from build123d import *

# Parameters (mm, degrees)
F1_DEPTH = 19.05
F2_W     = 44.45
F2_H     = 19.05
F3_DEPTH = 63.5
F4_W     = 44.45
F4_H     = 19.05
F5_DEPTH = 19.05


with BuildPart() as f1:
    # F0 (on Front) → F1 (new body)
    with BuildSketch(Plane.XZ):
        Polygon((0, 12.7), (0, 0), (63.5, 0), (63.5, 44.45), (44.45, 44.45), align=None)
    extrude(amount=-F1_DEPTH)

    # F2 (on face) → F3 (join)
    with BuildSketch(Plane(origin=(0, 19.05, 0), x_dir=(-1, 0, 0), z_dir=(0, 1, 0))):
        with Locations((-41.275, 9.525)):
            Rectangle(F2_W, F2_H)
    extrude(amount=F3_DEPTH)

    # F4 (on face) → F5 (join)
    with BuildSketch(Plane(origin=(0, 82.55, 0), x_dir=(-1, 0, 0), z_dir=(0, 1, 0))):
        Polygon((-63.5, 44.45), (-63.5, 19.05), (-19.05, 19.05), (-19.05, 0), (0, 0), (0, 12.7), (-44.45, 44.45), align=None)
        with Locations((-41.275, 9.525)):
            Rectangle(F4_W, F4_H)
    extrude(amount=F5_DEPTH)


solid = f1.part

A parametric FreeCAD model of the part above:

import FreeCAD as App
import Part
import Sketcher
Q = App.Units.Quantity

doc = App.newDocument("Part")
body = doc.addObject("PartDesign::Body", "Body")

# Sketch on XZ plane
sketch1 = body.newObject("Sketcher::SketchObject", "Sketch")
sketch1.AttachmentSupport = (doc.getObject("XZ_Plane"), [""])
sketch1.MapMode = "FlatFace"
sketch1.addGeometry([
    Part.LineSegment(App.Vector(0, 13, 0), App.Vector(0, 0, 0)),  # 0
    Part.LineSegment(App.Vector(0, 0, 0), App.Vector(64, 0, 0)),  # 1
    Part.LineSegment(App.Vector(64, 0, 0), App.Vector(64, 44, 0)),  # 2
    Part.LineSegment(App.Vector(64, 44, 0), App.Vector(44, 44, 0)),  # 3
    Part.LineSegment(App.Vector(44, 44, 0), App.Vector(0, 13, 0)),  # 4
], False)
sketch1.addConstraint([
    Sketcher.Constraint("Coincident", 0, 2, 1, 1),
    Sketcher.Constraint("Coincident", 1, 2, 2, 1),
    Sketcher.Constraint("Coincident", 2, 2, 3, 1),
    Sketcher.Constraint("Coincident", 3, 2, 4, 1),
    Sketcher.Constraint("Coincident", 4, 2, 0, 1),
    Sketcher.Constraint("Vertical", 0),
    Sketcher.Constraint("Horizontal", 1),
    Sketcher.Constraint("Vertical", 2),
    Sketcher.Constraint("Horizontal", 3),
    Sketcher.Constraint("Coincident", 0, 2, -1, 1),
    Sketcher.Constraint("DistanceX", 1, 1, 1, 2, Q("2.5 in")),
    Sketcher.Constraint("DistanceY", 0, 2, 0, 1, Q("0.5 in")),
    Sketcher.Constraint("DistanceX", 3, 2, 3, 1, Q("0.75 in")),
    Sketcher.Constraint("DistanceY", 2, 1, 2, 2, Q("1.75 in")),
])
pad1 = body.newObject("PartDesign::Pad", "Pad")
pad1.Profile = sketch1
pad1.Length = Q("0.75 in")
pad1.Reversed = True

# Sketch on XZ plane
sketch2 = body.newObject("Sketcher::SketchObject", "Sketch001")
sketch2.AttachmentSupport = (doc.getObject("XZ_Plane"), [""])
sketch2.MapMode = "FlatFace"
sketch2.AttachmentOffset = App.Placement(App.Vector(0, 0, -0.75 * 25.4), App.Rotation())
sketch2.addGeometry([
    Part.LineSegment(App.Vector(64, 19, 0), App.Vector(64, 0, 0)),
    Part.LineSegment(App.Vector(64, 0, 0), App.Vector(19, 0, 0)),
    Part.LineSegment(App.Vector(19, 0, 0), App.Vector(19, 19, 0)),
    Part.LineSegment(App.Vector(19, 19, 0), App.Vector(64, 19, 0)),
], False)
sketch2.addConstraint([
    Sketcher.Constraint("Coincident", 0, 2, 1, 1),
    Sketcher.Constraint("Coincident", 1, 2, 2, 1),
    Sketcher.Constraint("Coincident", 2, 2, 3, 1),
    Sketcher.Constraint("Coincident", 3, 2, 0, 1),
    Sketcher.Constraint("Vertical", 0),
    Sketcher.Constraint("Horizontal", 1),
    Sketcher.Constraint("Vertical", 2),
    Sketcher.Constraint("Horizontal", 3),
    Sketcher.Constraint("PointOnObject", 0, 2, -1),
    Sketcher.Constraint("DistanceX", 1, 2, 1, 1, Q("1.75 in")),
    Sketcher.Constraint("DistanceY", 0, 2, 0, 1, Q("0.75 in")),
    Sketcher.Constraint("DistanceX", -1, 1, 0, 2, Q("2.5 in")),
])
pad2 = body.newObject("PartDesign::Pad", "Pad001")
pad2.Profile = sketch2
pad2.Length = Q("2.5 in")
pad2.Reversed = True

# Sketch on XZ plane
sketch3 = body.newObject("Sketcher::SketchObject", "Sketch002")
sketch3.AttachmentSupport = (doc.getObject("XZ_Plane"), [""])
sketch3.MapMode = "FlatFace"
sketch3.AttachmentOffset = App.Placement(App.Vector(0, 0, -3.25 * 25.4), App.Rotation())
sketch3.addGeometry([
    Part.LineSegment(App.Vector(64, 44, 0), App.Vector(64, 0, 0)),  # 0
    Part.LineSegment(App.Vector(64, 0, 0), App.Vector(0, 0, 0)),  # 1
    Part.LineSegment(App.Vector(0, 0, 0), App.Vector(0, 13, 0)),  # 2
    Part.LineSegment(App.Vector(0, 13, 0), App.Vector(44, 44, 0)),  # 3
    Part.LineSegment(App.Vector(44, 44, 0), App.Vector(64, 44, 0)),  # 4
], False)
sketch3.addConstraint([
    Sketcher.Constraint("Coincident", 0, 2, 1, 1),
    Sketcher.Constraint("Coincident", 1, 2, 2, 1),
    Sketcher.Constraint("Coincident", 2, 2, 3, 1),
    Sketcher.Constraint("Coincident", 3, 2, 4, 1),
    Sketcher.Constraint("Coincident", 4, 2, 0, 1),
    Sketcher.Constraint("Vertical", 0),
    Sketcher.Constraint("Horizontal", 1),
    Sketcher.Constraint("Vertical", 2),
    Sketcher.Constraint("Horizontal", 4),
    Sketcher.Constraint("Coincident", 1, 2, -1, 1),
    Sketcher.Constraint("DistanceX", 1, 2, 1, 1, Q("2.5 in")),
    Sketcher.Constraint("DistanceY", 2, 1, 2, 2, Q("0.5 in")),
    Sketcher.Constraint("DistanceX", 4, 1, 4, 2, Q("0.75 in")),
    Sketcher.Constraint("DistanceY", 0, 2, 0, 1, Q("1.75 in")),
])
pad3 = body.newObject("PartDesign::Pad", "Pad002")
pad3.Profile = sketch3
pad3.Length = Q("0.75 in")
pad3.Reversed = True

doc.recompute()
